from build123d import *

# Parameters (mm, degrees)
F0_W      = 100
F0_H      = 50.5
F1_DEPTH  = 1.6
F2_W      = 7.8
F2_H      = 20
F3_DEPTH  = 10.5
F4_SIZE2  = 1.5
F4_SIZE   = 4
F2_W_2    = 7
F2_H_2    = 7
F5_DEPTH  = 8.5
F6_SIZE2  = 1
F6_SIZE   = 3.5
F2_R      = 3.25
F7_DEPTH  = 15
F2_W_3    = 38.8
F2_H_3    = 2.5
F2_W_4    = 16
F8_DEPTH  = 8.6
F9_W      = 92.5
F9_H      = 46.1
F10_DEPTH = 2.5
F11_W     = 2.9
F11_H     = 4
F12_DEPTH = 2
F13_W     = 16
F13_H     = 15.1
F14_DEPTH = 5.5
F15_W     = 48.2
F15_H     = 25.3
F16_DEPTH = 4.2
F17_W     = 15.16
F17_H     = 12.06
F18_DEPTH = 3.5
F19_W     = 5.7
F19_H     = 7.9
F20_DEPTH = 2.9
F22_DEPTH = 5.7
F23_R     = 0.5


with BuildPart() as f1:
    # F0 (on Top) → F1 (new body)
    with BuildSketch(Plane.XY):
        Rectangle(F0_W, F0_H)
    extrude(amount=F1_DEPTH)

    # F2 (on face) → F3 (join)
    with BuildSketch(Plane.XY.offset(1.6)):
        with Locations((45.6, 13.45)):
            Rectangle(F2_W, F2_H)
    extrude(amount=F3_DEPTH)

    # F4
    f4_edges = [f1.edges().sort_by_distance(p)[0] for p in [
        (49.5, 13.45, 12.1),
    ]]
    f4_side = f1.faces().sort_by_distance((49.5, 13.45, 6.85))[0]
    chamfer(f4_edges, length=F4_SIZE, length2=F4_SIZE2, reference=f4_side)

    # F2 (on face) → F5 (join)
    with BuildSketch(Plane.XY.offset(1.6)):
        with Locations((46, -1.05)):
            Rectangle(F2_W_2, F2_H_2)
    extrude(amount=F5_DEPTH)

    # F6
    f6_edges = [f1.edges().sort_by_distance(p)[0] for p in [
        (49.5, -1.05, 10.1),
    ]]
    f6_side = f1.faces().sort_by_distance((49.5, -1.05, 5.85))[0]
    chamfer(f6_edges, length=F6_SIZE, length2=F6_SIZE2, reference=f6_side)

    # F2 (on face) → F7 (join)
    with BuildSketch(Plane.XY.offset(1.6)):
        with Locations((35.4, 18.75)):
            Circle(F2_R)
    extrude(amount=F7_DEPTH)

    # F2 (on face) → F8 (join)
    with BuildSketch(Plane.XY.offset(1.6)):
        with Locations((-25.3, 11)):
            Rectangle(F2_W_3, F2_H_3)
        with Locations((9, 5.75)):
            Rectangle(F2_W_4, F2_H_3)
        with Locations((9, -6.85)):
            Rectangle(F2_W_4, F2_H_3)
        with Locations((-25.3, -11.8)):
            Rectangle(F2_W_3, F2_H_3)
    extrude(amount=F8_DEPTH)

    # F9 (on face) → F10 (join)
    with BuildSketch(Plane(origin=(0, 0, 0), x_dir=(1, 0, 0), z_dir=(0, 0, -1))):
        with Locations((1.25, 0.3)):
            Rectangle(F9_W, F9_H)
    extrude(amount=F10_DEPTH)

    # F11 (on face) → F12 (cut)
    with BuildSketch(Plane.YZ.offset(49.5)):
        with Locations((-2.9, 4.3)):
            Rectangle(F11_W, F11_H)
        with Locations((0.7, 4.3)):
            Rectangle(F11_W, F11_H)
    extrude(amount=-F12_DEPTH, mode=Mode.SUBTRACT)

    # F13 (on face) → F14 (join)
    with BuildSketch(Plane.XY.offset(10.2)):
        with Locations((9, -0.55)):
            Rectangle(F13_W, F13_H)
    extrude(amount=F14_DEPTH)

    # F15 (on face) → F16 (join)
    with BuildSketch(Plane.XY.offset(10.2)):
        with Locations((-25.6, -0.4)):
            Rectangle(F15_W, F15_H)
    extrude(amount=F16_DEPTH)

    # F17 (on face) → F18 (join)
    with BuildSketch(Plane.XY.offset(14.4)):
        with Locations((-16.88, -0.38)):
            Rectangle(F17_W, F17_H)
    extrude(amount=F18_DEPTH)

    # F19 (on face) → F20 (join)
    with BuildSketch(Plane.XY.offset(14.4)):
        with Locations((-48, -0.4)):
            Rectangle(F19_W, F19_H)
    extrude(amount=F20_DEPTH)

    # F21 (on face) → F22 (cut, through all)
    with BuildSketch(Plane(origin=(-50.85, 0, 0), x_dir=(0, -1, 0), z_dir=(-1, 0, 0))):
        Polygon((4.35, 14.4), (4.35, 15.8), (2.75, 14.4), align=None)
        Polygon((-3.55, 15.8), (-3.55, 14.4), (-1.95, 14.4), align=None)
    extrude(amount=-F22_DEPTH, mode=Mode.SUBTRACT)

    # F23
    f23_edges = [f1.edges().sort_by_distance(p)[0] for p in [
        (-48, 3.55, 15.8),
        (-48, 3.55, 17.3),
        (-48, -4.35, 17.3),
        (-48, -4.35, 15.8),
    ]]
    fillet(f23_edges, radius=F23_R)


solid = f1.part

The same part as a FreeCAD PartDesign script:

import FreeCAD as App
import Part
import Sketcher
Q = App.Units.Quantity


def edges_at(feature, points):
    """Names of the edges that pass closest to the given points."""
    edges = feature.Shape.Edges
    near = lambda p: min(range(len(edges)), key=lambda i: edges[i].distToShape(Part.Vertex(*p))[0])
    return sorted({f"Edge{near(p) + 1}" for p in points})


def add_polygon(sketch, points):
    """Adds a closed chain of lines whose ends are joined by coincident constraints."""
    first, n = sketch.GeometryCount, len(points)
    for a, b in zip(points, points[1:] + points[:1]):
        sketch.addGeometry(Part.LineSegment(App.Vector(*a, 0), App.Vector(*b, 0)), False)
    for i in range(n):
        sketch.addConstraint(Sketcher.Constraint("Coincident", first + i, 2, first + (i + 1) % n, 1))

doc = App.newDocument("Part")
body = doc.addObject("PartDesign::Body", "Body")

# Sketch on XY plane
sketch1 = body.newObject("Sketcher::SketchObject", "Sketch")
sketch1.AttachmentSupport = (doc.getObject("XY_Plane"), [""])
sketch1.MapMode = "FlatFace"
add_polygon(sketch1, [(-50, 25), (-50, -25), (50, -25), (50, 25)])  # lines 0-3
sketch1.addConstraint(Sketcher.Constraint("Vertical", 0))
sketch1.addConstraint(Sketcher.Constraint("Horizontal", 1))
sketch1.addConstraint(Sketcher.Constraint("Vertical", 2))
sketch1.addConstraint(Sketcher.Constraint("Horizontal", 3))
sketch1.addConstraint(Sketcher.Constraint("Symmetric", 0, 2, 2, 2, -1, 1))
sketch1.addConstraint(Sketcher.Constraint("DistanceX", 1, 1, 1, 2, Q("100 mm")))
sketch1.addConstraint(Sketcher.Constraint("DistanceY", 0, 2, 0, 1, Q("50.5 mm")))
pad1 = body.newObject("PartDesign::Pad", "Pad")
pad1.Profile = sketch1
pad1.Length = 1.6

# Sketch on XY plane
sketch2 = body.newObject("Sketcher::SketchObject", "Sketch001")
sketch2.AttachmentSupport = (doc.getObject("XY_Plane"), [""])
sketch2.MapMode = "FlatFace"
sketch2.AttachmentOffset = App.Placement(App.Vector(0, 0, 1.6), App.Rotation())
add_polygon(sketch2, [(42, 23), (42, 3), (50, 3), (50, 23)])  # lines 0-3
sketch2.addConstraint(Sketcher.Constraint("Vertical", 0))
sketch2.addConstraint(Sketcher.Constraint("Horizontal", 1))
sketch2.addConstraint(Sketcher.Constraint("Vertical", 2))
sketch2.addConstraint(Sketcher.Constraint("Horizontal", 3))
sketch2.addConstraint(Sketcher.Constraint("DistanceY", 0, 2, 0, 1, Q("20 mm")))
sketch2.addConstraint(Sketcher.Constraint("DistanceX", 1, 1, 1, 2, Q("7.8 mm")))
sketch2.addConstraint(Sketcher.Constraint("DistanceX", -1, 1, 0, 2, Q("41.7 mm")))
sketch2.addConstraint(Sketcher.Constraint("DistanceY", -1, 1, 0, 2, Q("3.45 mm")))
pad2 = body.newObject("PartDesign::Pad", "Pad001")
pad2.Profile = sketch2
pad2.Length = 10.5
doc.recompute()

chamfer = body.newObject("PartDesign::Chamfer", "Chamfer")
chamfer.Base = (pad2, edges_at(pad2, [(49.5, 13.45, 12.1)]))
chamfer.ChamferType = "Two distances"
chamfer.Size = 4
chamfer.Size2 = 1.5

# Sketch on XY plane
sketch3 = body.newObject("Sketcher::SketchObject", "Sketch002")
sketch3.AttachmentSupport = (doc.getObject("XY_Plane"), [""])
sketch3.MapMode = "FlatFace"
sketch3.AttachmentOffset = App.Placement(App.Vector(0, 0, 1.6), App.Rotation())
add_polygon(sketch3, [(42, 2), (42, -5), (50, -5), (50, 2)])  # lines 0-3
sketch3.addConstraint(Sketcher.Constraint("Vertical", 0))
sketch3.addConstraint(Sketcher.Constraint("Horizontal", 1))
sketch3.addConstraint(Sketcher.Constraint("Vertical", 2))
sketch3.addConstraint(Sketcher.Constraint("Horizontal", 3))
sketch3.addConstraint(Sketcher.Constraint("Equal", 3, 0))
sketch3.addConstraint(Sketcher.Constraint("DistanceX", 1, 1, 1, 2, Q("7 mm")))
sketch3.addConstraint(Sketcher.Constraint("DistanceX", -1, 1, 0, 2, Q("42.5 mm")))
sketch3.addConstraint(Sketcher.Constraint("DistanceY", 0, 2, -1, 1, Q("4.55 mm")))
pad3 = body.newObject("PartDesign::Pad", "Pad002")
pad3.Profile = sketch3
pad3.Length = 8.5
doc.recompute()

chamfer2 = body.newObject("PartDesign::Chamfer", "Chamfer001")
chamfer2.Base = (pad3, edges_at(pad3, [(49.5, -1.05, 10.1)]))
chamfer2.ChamferType = "Two distances"
chamfer2.Size = 3.5
chamfer2.Size2 = 1

# Sketch on XY plane
sketch4 = body.newObject("Sketcher::SketchObject", "Sketch003")
sketch4.AttachmentSupport = (doc.getObject("XY_Plane"), [""])
sketch4.MapMode = "FlatFace"
sketch4.AttachmentOffset = App.Placement(App.Vector(0, 0, 1.6), App.Rotation())
sketch4.addGeometry(Part.Circle(App.Vector(35.4, 18.8, 0), App.Vector(0, 0, 1), 3.2), False)
sketch4.addConstraint(Sketcher.Constraint("Diameter", 0, Q("6.5 mm")))
sketch4.addConstraint(Sketcher.Constraint("DistanceX", -1, 1, 0, 3, Q("35.4 mm")))
sketch4.addConstraint(Sketcher.Constraint("DistanceY", -1, 1, 0, 3, Q("18.75 mm")))
pad4 = body.newObject("PartDesign::Pad", "Pad003")
pad4.Profile = sketch4
pad4.Length = 15

# Sketch on XY plane
sketch5 = body.newObject("Sketcher::SketchObject", "Sketch004")
sketch5.AttachmentSupport = (doc.getObject("XY_Plane"), [""])
sketch5.MapMode = "FlatFace"
sketch5.AttachmentOffset = App.Placement(App.Vector(0, 0, 1.6), App.Rotation())
add_polygon(sketch5, [(-44.7, 12.2), (-44.7, 9.8), (-5.9, 9.8), (-5.9, 12.2)])  # lines 0-3
add_polygon(sketch5, [(1, 7), (1, 4.5), (17, 4.5), (17, 7)])  # lines 4-7
add_polygon(sketch5, [(1, -5.6), (1, -8.1), (17, -8.1), (17, -5.6)])  # lines 8-11
add_polygon(sketch5, [(-44.7, -10.6), (-44.7, -13.1), (-5.9, -13.1), (-5.9, -10.6)])  # lines 12-15
sketch5.addConstraint(Sketcher.Constraint("Vertical", 0))
sketch5.addConstraint(Sketcher.Constraint("Horizontal", 1))
sketch5.addConstraint(Sketcher.Constraint("Vertical", 2))
sketch5.addConstraint(Sketcher.Constraint("Horizontal", 3))
sketch5.addConstraint(Sketcher.Constraint("Vertical", 4))
sketch5.addConstraint(Sketcher.Constraint("Horizontal", 5))
sketch5.addConstraint(Sketcher.Constraint("Vertical", 6))
sketch5.addConstraint(Sketcher.Constraint("Horizontal", 7))
sketch5.addConstraint(Sketcher.Constraint("Vertical", 8))
sketch5.addConstraint(Sketcher.Constraint("Horizontal", 9))
sketch5.addConstraint(Sketcher.Constraint("Vertical", 10))
sketch5.addConstraint(Sketcher.Constraint("Horizontal", 11))
sketch5.addConstraint(Sketcher.Constraint("Vertical", 12))
sketch5.addConstraint(Sketcher.Constraint("Horizontal", 13))
sketch5.addConstraint(Sketcher.Constraint("Vertical", 14))
sketch5.addConstraint(Sketcher.Constraint("Horizontal", 15))
sketch5.addConstraint(Sketcher.Constraint("Vertical", 7, 2, 8, 2))
sketch5.addConstraint(Sketcher.Constraint("Vertical", 6, 2, 9, 2))
sketch5.addConstraint(Sketcher.Constraint("Vertical", 3, 2, 12, 2))
sketch5.addConstraint(Sketcher.Constraint("Vertical", 2, 2, 13, 2))
sketch5.addConstraint(Sketcher.Constraint("Equal", 2, 4))
sketch5.addConstraint(Sketcher.Constraint("Equal", 6, 8))
sketch5.addConstraint(Sketcher.Constraint("Equal", 10, 12))
sketch5.addConstraint(Sketcher.Constraint("DistanceX", 5, 1, 5, 2, Q("16 mm")))
sketch5.addConstraint(Sketcher.Constraint("DistanceX", 1, 1, 1, 2, Q("38.8 mm")))
sketch5.addConstraint(Sketcher.Constraint("DistanceY", 0, 2, 0, 1, Q("2.5 mm")))
sketch5.addConstraint(Sketcher.Constraint("DistanceX", -1, 1, 4, 2, Q("1 mm")))
sketch5.addConstraint(Sketcher.Constraint("DistanceY", -1, 1, 6, 2, Q("7 mm")))
sketch5.addConstraint(Sketcher.Constraint("DistanceX", 0, 2, -1, 1, Q("44.7 mm")))
sketch5.addConstraint(Sketcher.Constraint("DistanceY", 8, 2, -1, 1, Q("8.1 mm")))
sketch5.addConstraint(Sketcher.Constraint("DistanceY", 12, 2, 0, 2, Q("22.8 mm")))
sketch5.addConstraint(Sketcher.Constraint("DistanceY", -1, 1, 0, 2, Q("9.75 mm")))
pad5 = body.newObject("PartDesign::Pad", "Pad004")
pad5.Profile = sketch5
pad5.Length = 8.6

# Sketch on XY plane
sketch6 = body.newObject("Sketcher::SketchObject", "Sketch005")
sketch6.AttachmentSupport = (doc.getObject("XY_Plane"), [""])
sketch6.MapMode = "FlatFace"
add_polygon(sketch6, [(-45, -23), (-45, 23), (48, 23), (48, -23)])  # lines 0-3
sketch6.addConstraint(Sketcher.Constraint("Vertical", 0))
sketch6.addConstraint(Sketcher.Constraint("Horizontal", 1))
sketch6.addConstraint(Sketcher.Constraint("Vertical", 2))
sketch6.addConstraint(Sketcher.Constraint("Horizontal", 3))
sketch6.addConstraint(Sketcher.Constraint("DistanceX", 1, 1, 1, 2, Q("92.5 mm")))
sketch6.addConstraint(Sketcher.Constraint("DistanceY", 0, 1, 0, 2, Q("46.1 mm")))
sketch6.addConstraint(Sketcher.Constraint("DistanceX", 0, 2, -1, 1, Q("45 mm")))
sketch6.addConstraint(Sketcher.Constraint("DistanceY", -1, 1, 0, 2, Q("22.75 mm")))
pad6 = body.newObject("PartDesign::Pad", "Pad005")
pad6.Profile = sketch6
pad6.Length = 2.5
pad6.Reversed = True

# Sketch on YZ plane
sketch7 = body.newObject("Sketcher::SketchObject", "Sketch006")
sketch7.AttachmentSupport = (doc.getObject("YZ_Plane"), [""])
sketch7.MapMode = "FlatFace"
sketch7.AttachmentOffset = App.Placement(App.Vector(0, 0, 49.5), App.Rotation())
add_polygon(sketch7, [(-4.3, 6.3), (-4.3, 2.3), (-1.4, 2.3), (-1.4, 6.3)])  # lines 0-3
add_polygon(sketch7, [(-0.8, 6.3), (-0.8, 2.3), (2.1, 2.3), (2.1, 6.3)])  # lines 4-7
sketch7.addConstraint(Sketcher.Constraint("Vertical", 0))
sketch7.addConstraint(Sketcher.Constraint("Horizontal", 1))
sketch7.addConstraint(Sketcher.Constraint("Vertical", 2))
sketch7.addConstraint(Sketcher.Constraint("Horizontal", 3))
sketch7.addConstraint(Sketcher.Constraint("Vertical", 4))
sketch7.addConstraint(Sketcher.Constraint("Horizontal", 5))
sketch7.addConstraint(Sketcher.Constraint("Vertical", 6))
sketch7.addConstraint(Sketcher.Constraint("Horizontal", 7))
sketch7.addConstraint(Sketcher.Constraint("Horizontal", 1, 2, 4, 2))
sketch7.addConstraint(Sketcher.Constraint("Horizontal", 3, 2, 6, 2))
sketch7.addConstraint(Sketcher.Constraint("Equal", 3, 5))
sketch7.addConstraint(Sketcher.Constraint("DistanceY", 0, 2, 0, 1, Q("4 mm")))
sketch7.addConstraint(Sketcher.Constraint("DistanceX", 1, 1, 1, 2, Q("2.9 mm")))
sketch7.addConstraint(Sketcher.Constraint("DistanceY", -1, 1, 0, 2, Q("2.3 mm")))
sketch7.addConstraint(Sketcher.Constraint("DistanceX", 1, 2, 4, 2, Q("0.7 mm")))
sketch7.addConstraint(Sketcher.Constraint("DistanceX", 0, 2, -1, 1, Q("4.35 mm")))
pocket1 = body.newObject("PartDesign::Pocket", "Pocket")
pocket1.Profile = sketch7
pocket1.Length = 2

# Sketch on XY plane
sketch8 = body.newObject("Sketcher::SketchObject", "Sketch007")
sketch8.AttachmentSupport = (doc.getObject("XY_Plane"), [""])
sketch8.MapMode = "FlatFace"
sketch8.AttachmentOffset = App.Placement(App.Vector(0, 0, 10.2), App.Rotation())
add_polygon(sketch8, [(1, 7), (1, -8), (17, -8), (17, 7)])  # lines 0-3
sketch8.addConstraint(Sketcher.Constraint("Vertical", 0))
sketch8.addConstraint(Sketcher.Constraint("Horizontal", 1))
sketch8.addConstraint(Sketcher.Constraint("Vertical", 2))
sketch8.addConstraint(Sketcher.Constraint("Horizontal", 3))
sketch8.addConstraint(Sketcher.Constraint("DistanceX", 1, 1, 1, 2, Q("16 mm")))
sketch8.addConstraint(Sketcher.Constraint("DistanceY", 0, 2, 0, 1, Q("15.1 mm")))
sketch8.addConstraint(Sketcher.Constraint("DistanceX", -1, 1, 0, 2, Q("1 mm")))
sketch8.addConstraint(Sketcher.Constraint("DistanceY", -1, 1, 2, 2, Q("7 mm")))
pad7 = body.newObject("PartDesign::Pad", "Pad006")
pad7.Profile = sketch8
pad7.Length = 5.5

# Sketch on XY plane
sketch9 = body.newObject("Sketcher::SketchObject", "Sketch008")
sketch9.AttachmentSupport = (doc.getObject("XY_Plane"), [""])
sketch9.MapMode = "FlatFace"
sketch9.AttachmentOffset = App.Placement(App.Vector(0, 0, 10.2), App.Rotation())
add_polygon(sketch9, [(-50, 12), (-50, -13), (-2, -13), (-2, 12)])  # lines 0-3
sketch9.addConstraint(Sketcher.Constraint("Vertical", 0))
sketch9.addConstraint(Sketcher.Constraint("Horizontal", 1))
sketch9.addConstraint(Sketcher.Constraint("Vertical", 2))
sketch9.addConstraint(Sketcher.Constraint("Horizontal", 3))
sketch9.addConstraint(Sketcher.Constraint("DistanceX", 1, 1, 1, 2, Q("48.2 mm")))
sketch9.addConstraint(Sketcher.Constraint("DistanceY", 0, 2, 0, 1, Q("25.3 mm")))
sketch9.addConstraint(Sketcher.Constraint("DistanceX", 0, 2, -1, 1, Q("49.7 mm")))
sketch9.addConstraint(Sketcher.Constraint("DistanceY", 0, 2, -1, 1, Q("13.05 mm")))
pad8 = body.newObject("PartDesign::Pad", "Pad007")
pad8.Profile = sketch9
pad8.Length = 4.2

# Sketch on XY plane
sketch10 = body.newObject("Sketcher::SketchObject", "Sketch009")
sketch10.AttachmentSupport = (doc.getObject("XY_Plane"), [""])
sketch10.MapMode = "FlatFace"
sketch10.AttachmentOffset = App.Placement(App.Vector(0, 0, 14.4), App.Rotation())
add_polygon(sketch10, [(-24, 6), (-24, -6), (-9, -6), (-9, 6)])  # lines 0-3
sketch10.addConstraint(Sketcher.Constraint("Vertical", 0))
sketch10.addConstraint(Sketcher.Constraint("Horizontal", 1))
sketch10.addConstraint(Sketcher.Constraint("Vertical", 2))
sketch10.addConstraint(Sketcher.Constraint("Horizontal", 3))
sketch10.addConstraint(Sketcher.Constraint("DistanceX", 1, 1, 1, 2, Q("15.16 mm")))
sketch10.addConstraint(Sketcher.Constraint("DistanceY", 0, 2, 0, 1, Q("12.06 mm")))
sketch10.addConstraint(Sketcher.Constraint("DistanceX", 1, 2, -1, 1, Q("9.3 mm")))
sketch10.addConstraint(Sketcher.Constraint("DistanceY", 0, 2, -1, 1, Q("6.41 mm")))
pad9 = body.newObject("PartDesign::Pad", "Pad008")
pad9.Profile = sketch10
pad9.Length = 3.5

# Sketch on XY plane
sketch11 = body.newObject("Sketcher::SketchObject", "Sketch010")
sketch11.AttachmentSupport = (doc.getObject("XY_Plane"), [""])
sketch11.MapMode = "FlatFace"
sketch11.AttachmentOffset = App.Placement(App.Vector(0, 0, 14.4), App.Rotation())
add_polygon(sketch11, [(-51, 4), (-51, -4), (-45, -4), (-45, 4)])  # lines 0-3
sketch11.addConstraint(Sketcher.Constraint("Vertical", 0))
sketch11.addConstraint(Sketcher.Constraint("Horizontal", 1))
sketch11.addConstraint(Sketcher.Constraint("Vertical", 2))
sketch11.addConstraint(Sketcher.Constraint("Horizontal", 3))
sketch11.addConstraint(Sketcher.Constraint("DistanceX", 1, 1, 1, 2, Q("5.7 mm")))
sketch11.addConstraint(Sketcher.Constraint("DistanceY", 0, 2, 0, 1, Q("7.9 mm")))
sketch11.addConstraint(Sketcher.Constraint("DistanceX", 0, 2, -1, 1, Q("50.85 mm")))
sketch11.addConstraint(Sketcher.Constraint("DistanceY", 0, 2, -1, 1, Q("4.35 mm")))
pad10 = body.newObject("PartDesign::Pad", "Pad009")
pad10.Profile = sketch11
pad10.Length = 2.9

# Sketch on YZ plane
sketch12 = body.newObject("Sketcher::SketchObject", "Sketch011")
sketch12.AttachmentSupport = (doc.getObject("YZ_Plane"), [""])
sketch12.MapMode = "FlatFace"
sketch12.AttachmentOffset = App.Placement(App.Vector(0, 0, -50.85), App.Rotation())
add_polygon(sketch12, [(-4.3, 14.4), (-4.3, 15.8), (-2.8, 14.4)])  # lines 0-2
add_polygon(sketch12, [(3.5, 15.8), (3.5, 14.4), (1.9, 14.4)])  # lines 3-5
sketch12.addConstraint(Sketcher.Constraint("Vertical", 0))
sketch12.addConstraint(Sketcher.Constraint("Horizontal", 2))
sketch12.addConstraint(Sketcher.Constraint("Vertical", 3))
sketch12.addConstraint(Sketcher.Constraint("Horizontal", 4))
sketch12.addConstraint(Sketcher.Constraint("Horizontal", 2, 2, 3, 2))
sketch12.addConstraint(Sketcher.Constraint("Horizontal", 0, 2, 5, 2))
sketch12.addConstraint(Sketcher.Constraint("Equal", 2, 4))
sketch12.addConstraint(Sketcher.Constraint("DistanceX", 2, 2, 2, 1, Q("1.6 mm")))
sketch12.addConstraint(Sketcher.Constraint("DistanceY", 0, 1, 0, 2, Q("1.4 mm")))
sketch12.addConstraint(Sketcher.Constraint("DistanceY", -1, 1, 0, 2, Q("15.8 mm")))
sketch12.addConstraint(Sketcher.Constraint("DistanceX", 1, 2, 3, 2, Q("6.3 mm")))
sketch12.addConstraint(Sketcher.Constraint("DistanceX", 0, 2, -1, 1, Q("4.35 mm")))
pocket2 = body.newObject("PartDesign::Pocket", "Pocket001")
pocket2.Profile = sketch12
pocket2.Length = 5.7
pocket2.Reversed = True
doc.recompute()

fillet = body.newObject("PartDesign::Fillet", "Fillet")
fillet.Base = (pocket2, edges_at(pocket2, [
    (-48, 3.55, 15.8),
    (-48, 3.55, 17.3),
    (-48, -4.35, 17.3),
    (-48, -4.35, 15.8),
]))
fillet.Radius = 0.5

doc.recompute()
